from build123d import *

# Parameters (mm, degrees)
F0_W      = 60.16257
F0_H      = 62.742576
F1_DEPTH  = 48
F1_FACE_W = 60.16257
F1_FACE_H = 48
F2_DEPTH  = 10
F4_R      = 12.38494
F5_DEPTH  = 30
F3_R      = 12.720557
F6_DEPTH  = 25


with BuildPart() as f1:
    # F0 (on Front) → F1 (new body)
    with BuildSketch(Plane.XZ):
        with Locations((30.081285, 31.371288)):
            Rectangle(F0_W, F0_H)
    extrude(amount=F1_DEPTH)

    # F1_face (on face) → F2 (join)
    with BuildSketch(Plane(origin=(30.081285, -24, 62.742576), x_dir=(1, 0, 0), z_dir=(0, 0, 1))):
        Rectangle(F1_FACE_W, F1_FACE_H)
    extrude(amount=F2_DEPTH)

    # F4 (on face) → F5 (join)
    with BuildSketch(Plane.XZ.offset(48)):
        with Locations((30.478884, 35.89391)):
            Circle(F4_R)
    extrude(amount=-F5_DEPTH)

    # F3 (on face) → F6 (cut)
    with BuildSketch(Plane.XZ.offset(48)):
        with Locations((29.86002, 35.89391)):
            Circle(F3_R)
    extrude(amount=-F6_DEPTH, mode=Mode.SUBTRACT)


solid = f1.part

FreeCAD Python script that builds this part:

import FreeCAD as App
import Part
import Sketcher

doc = App.newDocument("Part")
body = doc.addObject("PartDesign::Body", "Body")

# Sketch on XZ plane
sketch1 = doc.addObject("Sketcher::SketchObject", "Sketch")
body.addObject(sketch1)
sketch1.AttachmentSupport = (doc.XZ_Plane, [""])
sketch1.MapMode = "FlatFace"
sketch1.addGeometry([
    Part.LineSegment(App.Vector(0, 63, 0), App.Vector(0, 0, 0)),
    Part.LineSegment(App.Vector(0, 0, 0), App.Vector(60, 0, 0)),
    Part.LineSegment(App.Vector(60, 0, 0), App.Vector(60, 63, 0)),
    Part.LineSegment(App.Vector(60, 63, 0), App.Vector(0, 63, 0)),
], False)
sketch1.addConstraint([
    Sketcher.Constraint("Coincident", 0, 2, 1, 1),
    Sketcher.Constraint("Coincident", 1, 2, 2, 1),
    Sketcher.Constraint("Coincident", 2, 2, 3, 1),
    Sketcher.Constraint("Coincident", 3, 2, 0, 1),
    Sketcher.Constraint("Vertical", 0),
    Sketcher.Constraint("Horizontal", 1),
    Sketcher.Constraint("Vertical", 2),
    Sketcher.Constraint("Horizontal", 3),
    Sketcher.Constraint("Coincident", 0, 2, -1, 1),
    Sketcher.Constraint("DistanceX", 1, 1, 1, 2, 60.16257),
    Sketcher.Constraint("DistanceY", 0, 2, 0, 1, 62.742576),
])
pad1 = doc.addObject("PartDesign::Pad", "Pad")
body.addObject(pad1)
pad1.Profile = sketch1
pad1.Length = 48

# Sketch on XY plane
sketch2 = doc.addObject("Sketcher::SketchObject", "Sketch001")
body.addObject(sketch2)
sketch2.AttachmentSupport = (doc.XY_Plane, [""])
sketch2.MapMode = "FlatFace"
sketch2.AttachmentOffset = App.Placement(App.Vector(0, 0, 62.742576), App.Rotation())
sketch2.addGeometry([
    Part.LineSegment(App.Vector(0, 0, 0), App.Vector(0, -48, 0)),
    Part.LineSegment(App.Vector(0, -48, 0), App.Vector(60, -48, 0)),
    Part.LineSegment(App.Vector(60, -48, 0), App.Vector(60, 0, 0)),
    Part.LineSegment(App.Vector(60, 0, 0), App.Vector(0, 0, 0)),
], False)
sketch2.addConstraint([
    Sketcher.Constraint("Coincident", 0, 2, 1, 1),
    Sketcher.Constraint("Coincident", 1, 2, 2, 1),
    Sketcher.Constraint("Coincident", 2, 2, 3, 1),
    Sketcher.Constraint("Coincident", 3, 2, 0, 1),
    Sketcher.Constraint("Vertical", 0),
    Sketcher.Constraint("Horizontal", 1),
    Sketcher.Constraint("Vertical", 2),
    Sketcher.Constraint("Horizontal", 3),
    Sketcher.Constraint("Coincident", 3, 2, -1, 1),
    Sketcher.Constraint("DistanceY", 0, 2, 0, 1, 48.0),
    Sketcher.Constraint("DistanceX", 1, 1, 1, 2, 60.16257),
])
pad2 = doc.addObject("PartDesign::Pad", "Pad001")
body.addObject(pad2)
pad2.Profile = sketch2
pad2.Length = 10

# Sketch on XZ plane
sketch3 = doc.addObject("Sketcher::SketchObject", "Sketch002")
body.addObject(sketch3)
sketch3.AttachmentSupport = (doc.XZ_Plane, [""])
sketch3.MapMode = "FlatFace"
sketch3.AttachmentOffset = App.Placement(App.Vector(0, 0, 48), App.Rotation())
sketch3.addGeometry(Part.Circle(App.Vector(30, 36, 0), App.Vector(0, 0, 1), 12), False)
sketch3.addConstraint([
    Sketcher.Constraint("Diameter", 0, 24.76988),
    Sketcher.Constraint("DistanceY", -1, 1, 0, 3, 35.89391),
    Sketcher.Constraint("DistanceX", -1, 1, 0, 3, 30.478884),
])
pad3 = doc.addObject("PartDesign::Pad", "Pad002")
body.addObject(pad3)
pad3.Profile = sketch3
pad3.Length = 30
pad3.Reversed = True

# Sketch on XZ plane
sketch4 = doc.addObject("Sketcher::SketchObject", "Sketch003")
body.addObject(sketch4)
sketch4.AttachmentSupport = (doc.XZ_Plane, [""])
sketch4.MapMode = "FlatFace"
sketch4.AttachmentOffset = App.Placement(App.Vector(0, 0, 48), App.Rotation())
sketch4.addGeometry(Part.Circle(App.Vector(30, 36, 0), App.Vector(0, 0, 1), 13), False)
sketch4.addConstraint([
    Sketcher.Constraint("Diameter", 0, 25.441114),
    Sketcher.Constraint("DistanceX", -1, 1, 0, 3, 29.86002),
    Sketcher.Constraint("DistanceY", -1, 1, 0, 3, 35.89391),
])
pocket1 = doc.addObject("PartDesign::Pocket", "Pocket")
body.addObject(pocket1)
pocket1.Profile = sketch4
pocket1.Length = 25

doc.recompute()
